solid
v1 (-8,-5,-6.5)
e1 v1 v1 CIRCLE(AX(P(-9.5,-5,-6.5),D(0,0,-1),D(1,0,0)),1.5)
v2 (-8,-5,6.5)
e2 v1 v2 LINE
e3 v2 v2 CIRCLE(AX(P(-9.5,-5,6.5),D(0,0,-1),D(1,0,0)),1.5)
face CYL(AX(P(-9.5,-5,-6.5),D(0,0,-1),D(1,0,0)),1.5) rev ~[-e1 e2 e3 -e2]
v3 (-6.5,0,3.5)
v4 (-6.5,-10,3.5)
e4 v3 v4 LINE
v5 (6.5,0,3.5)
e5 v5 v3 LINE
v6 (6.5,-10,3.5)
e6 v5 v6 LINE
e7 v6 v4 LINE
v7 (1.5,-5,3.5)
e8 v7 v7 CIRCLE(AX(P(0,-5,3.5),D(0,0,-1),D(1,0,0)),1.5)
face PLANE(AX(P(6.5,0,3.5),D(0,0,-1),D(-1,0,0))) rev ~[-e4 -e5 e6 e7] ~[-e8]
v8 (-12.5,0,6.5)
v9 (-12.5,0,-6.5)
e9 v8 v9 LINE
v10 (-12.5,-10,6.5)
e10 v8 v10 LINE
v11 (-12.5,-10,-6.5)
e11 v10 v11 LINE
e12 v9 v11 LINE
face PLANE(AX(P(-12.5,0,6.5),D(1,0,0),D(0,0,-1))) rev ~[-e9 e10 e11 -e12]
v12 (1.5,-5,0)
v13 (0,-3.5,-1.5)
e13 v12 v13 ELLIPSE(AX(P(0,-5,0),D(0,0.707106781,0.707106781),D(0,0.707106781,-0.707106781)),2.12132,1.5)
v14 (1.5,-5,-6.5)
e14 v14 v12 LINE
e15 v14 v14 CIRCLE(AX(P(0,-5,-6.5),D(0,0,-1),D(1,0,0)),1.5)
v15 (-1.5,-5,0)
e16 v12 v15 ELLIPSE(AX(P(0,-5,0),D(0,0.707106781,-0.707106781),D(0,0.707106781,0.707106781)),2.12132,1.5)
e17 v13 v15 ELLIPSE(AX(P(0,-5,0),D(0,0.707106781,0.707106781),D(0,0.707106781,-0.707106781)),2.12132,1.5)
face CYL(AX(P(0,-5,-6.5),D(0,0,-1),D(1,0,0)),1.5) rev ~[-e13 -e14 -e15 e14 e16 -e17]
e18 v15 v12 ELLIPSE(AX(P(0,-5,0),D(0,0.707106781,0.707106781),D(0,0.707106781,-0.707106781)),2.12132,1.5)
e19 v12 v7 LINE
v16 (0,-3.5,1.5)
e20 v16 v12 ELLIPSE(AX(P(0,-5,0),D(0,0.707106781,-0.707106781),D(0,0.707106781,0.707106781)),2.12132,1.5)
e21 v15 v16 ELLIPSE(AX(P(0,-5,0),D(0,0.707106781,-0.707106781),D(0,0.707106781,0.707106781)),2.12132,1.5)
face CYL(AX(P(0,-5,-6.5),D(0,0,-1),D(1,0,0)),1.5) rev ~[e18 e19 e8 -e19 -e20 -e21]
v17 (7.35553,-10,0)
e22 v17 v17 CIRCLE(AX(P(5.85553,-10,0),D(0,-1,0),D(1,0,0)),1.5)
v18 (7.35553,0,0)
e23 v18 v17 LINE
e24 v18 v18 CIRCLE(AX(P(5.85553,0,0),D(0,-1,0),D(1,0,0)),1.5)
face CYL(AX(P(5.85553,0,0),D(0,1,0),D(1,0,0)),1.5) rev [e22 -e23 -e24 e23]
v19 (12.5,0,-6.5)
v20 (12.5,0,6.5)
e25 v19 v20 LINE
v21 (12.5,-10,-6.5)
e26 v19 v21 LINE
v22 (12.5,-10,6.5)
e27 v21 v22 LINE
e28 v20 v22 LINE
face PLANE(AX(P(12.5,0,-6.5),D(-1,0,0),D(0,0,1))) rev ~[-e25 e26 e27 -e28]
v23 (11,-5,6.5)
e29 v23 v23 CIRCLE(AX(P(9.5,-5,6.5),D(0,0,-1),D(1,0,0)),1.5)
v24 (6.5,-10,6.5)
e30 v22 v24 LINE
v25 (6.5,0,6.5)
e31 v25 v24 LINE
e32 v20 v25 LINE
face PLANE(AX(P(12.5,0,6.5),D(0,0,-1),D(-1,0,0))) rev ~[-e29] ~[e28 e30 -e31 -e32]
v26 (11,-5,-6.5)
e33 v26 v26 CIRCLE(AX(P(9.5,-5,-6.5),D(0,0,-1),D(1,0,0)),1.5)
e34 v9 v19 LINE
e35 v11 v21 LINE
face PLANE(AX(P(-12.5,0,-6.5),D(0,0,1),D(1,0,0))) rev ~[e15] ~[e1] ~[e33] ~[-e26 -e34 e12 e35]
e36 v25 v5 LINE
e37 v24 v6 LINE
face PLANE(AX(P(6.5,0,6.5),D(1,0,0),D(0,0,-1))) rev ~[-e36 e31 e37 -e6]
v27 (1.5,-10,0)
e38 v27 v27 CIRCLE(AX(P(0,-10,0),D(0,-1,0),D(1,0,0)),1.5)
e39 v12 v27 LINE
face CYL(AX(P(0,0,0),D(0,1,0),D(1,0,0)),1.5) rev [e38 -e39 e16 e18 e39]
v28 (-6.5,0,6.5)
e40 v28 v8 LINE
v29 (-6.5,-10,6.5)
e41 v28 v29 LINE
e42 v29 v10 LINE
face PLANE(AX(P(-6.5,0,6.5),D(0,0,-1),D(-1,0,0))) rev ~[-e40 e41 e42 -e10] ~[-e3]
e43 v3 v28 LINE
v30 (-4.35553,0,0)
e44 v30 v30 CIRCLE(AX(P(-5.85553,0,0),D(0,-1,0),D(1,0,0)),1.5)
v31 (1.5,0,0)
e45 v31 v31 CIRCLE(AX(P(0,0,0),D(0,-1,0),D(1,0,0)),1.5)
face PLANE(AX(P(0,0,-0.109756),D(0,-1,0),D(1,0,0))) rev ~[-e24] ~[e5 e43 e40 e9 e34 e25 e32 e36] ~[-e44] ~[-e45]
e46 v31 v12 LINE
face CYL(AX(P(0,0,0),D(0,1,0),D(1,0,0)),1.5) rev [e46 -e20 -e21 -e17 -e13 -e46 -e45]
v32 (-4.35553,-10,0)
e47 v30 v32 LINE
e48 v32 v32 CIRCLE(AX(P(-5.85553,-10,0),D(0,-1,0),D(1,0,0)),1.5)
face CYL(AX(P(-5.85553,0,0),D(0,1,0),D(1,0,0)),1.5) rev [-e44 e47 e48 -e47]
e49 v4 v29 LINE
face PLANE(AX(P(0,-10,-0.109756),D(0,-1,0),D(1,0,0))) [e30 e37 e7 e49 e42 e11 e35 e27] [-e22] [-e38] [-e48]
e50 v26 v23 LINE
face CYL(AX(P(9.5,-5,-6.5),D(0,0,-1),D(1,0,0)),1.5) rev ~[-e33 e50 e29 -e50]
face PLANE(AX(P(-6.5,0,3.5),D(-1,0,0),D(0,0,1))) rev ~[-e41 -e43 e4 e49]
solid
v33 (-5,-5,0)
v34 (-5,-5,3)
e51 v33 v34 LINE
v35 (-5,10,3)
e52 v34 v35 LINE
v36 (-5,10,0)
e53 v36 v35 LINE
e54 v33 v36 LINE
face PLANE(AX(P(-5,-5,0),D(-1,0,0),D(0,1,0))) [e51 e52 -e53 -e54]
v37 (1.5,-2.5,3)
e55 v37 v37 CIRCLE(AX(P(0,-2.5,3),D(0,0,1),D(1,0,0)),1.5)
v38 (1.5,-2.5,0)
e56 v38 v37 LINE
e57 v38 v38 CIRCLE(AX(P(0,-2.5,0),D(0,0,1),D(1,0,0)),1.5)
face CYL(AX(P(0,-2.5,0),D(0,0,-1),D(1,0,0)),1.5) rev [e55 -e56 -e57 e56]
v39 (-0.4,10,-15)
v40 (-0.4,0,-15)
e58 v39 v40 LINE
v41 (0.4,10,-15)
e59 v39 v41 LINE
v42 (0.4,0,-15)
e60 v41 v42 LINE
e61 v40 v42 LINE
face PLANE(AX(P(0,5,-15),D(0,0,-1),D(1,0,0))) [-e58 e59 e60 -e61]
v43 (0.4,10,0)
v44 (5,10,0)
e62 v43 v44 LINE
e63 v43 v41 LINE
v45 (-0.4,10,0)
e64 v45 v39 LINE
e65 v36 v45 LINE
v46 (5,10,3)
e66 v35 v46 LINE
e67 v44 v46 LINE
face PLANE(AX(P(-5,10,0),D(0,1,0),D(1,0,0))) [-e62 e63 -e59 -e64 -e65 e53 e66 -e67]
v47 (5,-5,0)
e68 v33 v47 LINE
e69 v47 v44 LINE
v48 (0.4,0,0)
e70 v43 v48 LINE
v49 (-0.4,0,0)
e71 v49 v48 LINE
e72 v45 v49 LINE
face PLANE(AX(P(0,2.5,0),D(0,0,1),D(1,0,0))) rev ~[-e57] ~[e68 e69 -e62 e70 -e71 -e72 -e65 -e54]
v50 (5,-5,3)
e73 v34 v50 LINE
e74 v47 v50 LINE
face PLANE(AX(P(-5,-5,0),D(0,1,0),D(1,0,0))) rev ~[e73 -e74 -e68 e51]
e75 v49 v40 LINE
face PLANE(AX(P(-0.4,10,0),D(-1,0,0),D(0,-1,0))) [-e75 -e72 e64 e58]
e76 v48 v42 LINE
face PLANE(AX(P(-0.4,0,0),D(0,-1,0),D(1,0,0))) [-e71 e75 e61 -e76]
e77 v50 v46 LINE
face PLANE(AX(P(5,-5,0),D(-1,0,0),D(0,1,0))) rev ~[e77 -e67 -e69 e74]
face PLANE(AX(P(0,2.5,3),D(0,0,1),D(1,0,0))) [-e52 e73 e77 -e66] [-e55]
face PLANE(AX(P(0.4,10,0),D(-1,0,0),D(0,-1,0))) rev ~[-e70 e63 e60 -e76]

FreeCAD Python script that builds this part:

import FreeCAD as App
import Part
import Sketcher

V = App.Vector

doc = App.newDocument("Part")
body = doc.addObject("PartDesign::Body", "Body")

# Sketch on XZ plane
sketch1 = body.newObject("Sketcher::SketchObject", "Sketch")
sketch1.AttachmentSupport = (doc.getObject("XZ_Plane"), [""])
sketch1.MapMode = "FlatFace"
sketch1.addGeometry([
    Part.LineSegment(V(-12.5, 6.5, 0), V(-12.5, -6.5, 0)),  # 0
    Part.LineSegment(V(-12.5, -6.5, 0), V(12.5, -6.5, 0)),  # 1
    Part.LineSegment(V(12.5, -6.5, 0), V(12.5, 6.5, 0)),  # 2
    Part.LineSegment(V(12.5, 6.5, 0), V(6.5, 6.5, 0)),  # 3
    Part.LineSegment(V(6.5, 6.5, 0), V(6.5, 3.5, 0)),  # 4
    Part.LineSegment(V(6.5, 3.5, 0), V(-6.5, 3.5, 0)),  # 5
    Part.LineSegment(V(-6.5, 3.5, 0), V(-6.5, 6.5, 0)),  # 6
    Part.LineSegment(V(-6.5, 6.5, 0), V(-12.5, 6.5, 0)),  # 7
    Part.Circle(V(-5.9, 0, 0), V(0, 0, 1), 1.5),  # 8
    Part.Circle(V(0, 0, 0), V(0, 0, 1), 1.5),  # 9
    Part.Circle(V(5.9, 0, 0), V(0, 0, 1), 1.5),  # 10
], False)
sketch1.addConstraint([
    Sketcher.Constraint("Coincident", 0, 2, 1, 1),
    Sketcher.Constraint("Coincident", 1, 2, 2, 1),
    Sketcher.Constraint("Coincident", 2, 2, 3, 1),
    Sketcher.Constraint("Coincident", 3, 2, 4, 1),
    Sketcher.Constraint("Coincident", 4, 2, 5, 1),
    Sketcher.Constraint("Coincident", 5, 2, 6, 1),
    Sketcher.Constraint("Coincident", 6, 2, 7, 1),
    Sketcher.Constraint("Coincident", 7, 2, 0, 1),
    Sketcher.Constraint("Vertical", 0),
    Sketcher.Constraint("Horizontal", 1),
    Sketcher.Constraint("Vertical", 2),
    Sketcher.Constraint("Horizontal", 3),
    Sketcher.Constraint("Vertical", 4),
    Sketcher.Constraint("Horizontal", 5),
    Sketcher.Constraint("Vertical", 6),
    Sketcher.Constraint("Horizontal", 7),
    Sketcher.Constraint("Coincident", 9, 3, -1, 1),
    Sketcher.Constraint("Equal", 8, 9),
    Sketcher.Constraint("Equal", 9, 10),
    Sketcher.Constraint("Symmetric", 8, 3, 10, 3, -1, 1),
    Sketcher.Constraint("Symmetric", 0, 2, 2, 2, -1, 1),
    Sketcher.Constraint("Symmetric", 3, 2, 6, 2, -2),
    Sketcher.Constraint("PointOnObject", 8, 3, -1),
    Sketcher.Constraint("Equal", 5, 0),
    Sketcher.Constraint("Diameter", 8, 3.0),
    Sketcher.Constraint("DistanceX", 1, 1, 1, 2, 25.0),
    Sketcher.Constraint("DistanceX", 3, 2, 3, 1, 6.0),
    Sketcher.Constraint("DistanceY", 4, 2, 4, 1, 3.0),
    Sketcher.Constraint("DistanceX", 8, 3, -1, 1, 5.85553),
])
pad1 = body.newObject("PartDesign::Pad", "Pad")
pad1.Profile = sketch1
pad1.Length = 10

# Sketch on XY plane
sketch2 = body.newObject("Sketcher::SketchObject", "Sketch001")
sketch2.AttachmentSupport = (doc.getObject("XY_Plane"), [""])
sketch2.MapMode = "FlatFace"
sketch2.AttachmentOffset = App.Placement(V(0, 0, -6.5), App.Rotation())
sketch2.addGeometry([
    Part.Circle(V(-9.5, -5, 0), V(0, 0, 1), 1.5),
    Part.Circle(V(0, -5, 0), V(0, 0, 1), 1.5),
    Part.Circle(V(9.5, -5, 0), V(0, 0, 1), 1.5),
], False)
sketch2.addConstraint([
    Sketcher.Constraint("Equal", 0, 1),
    Sketcher.Constraint("Equal", 1, 2),
    Sketcher.Constraint("Symmetric", 0, 3, 2, 3, -2),
    Sketcher.Constraint("PointOnObject", 1, 3, -2),
    Sketcher.Constraint("Horizontal", 0, 3, 1, 3),
    Sketcher.Constraint("Diameter", 0, 3.0),
    Sketcher.Constraint("DistanceY", 0, 3, -1, 1, 5.0),
    Sketcher.Constraint("DistanceX", 0, 3, 2, 3, 19.0),
])
pocket1 = body.newObject("PartDesign::Pocket", "Pocket")
pocket1.Profile = sketch2
pocket1.Type = "ThroughAll"
pocket1.Reversed = True
body2 = doc.addObject("PartDesign::Body", "Body001")

# Sketch on XY plane
sketch3 = body2.newObject("Sketcher::SketchObject", "Sketch002")
sketch3.AttachmentSupport = (doc.getObject("XY_Plane001"), [""])
sketch3.MapMode = "FlatFace"
sketch3.addGeometry([
    Part.LineSegment(V(-5, 10, 0), V(-5, -5, 0)),  # 0
    Part.LineSegment(V(-5, -5, 0), V(5, -5, 0)),  # 1
    Part.LineSegment(V(5, -5, 0), V(5, 10, 0)),  # 2
    Part.LineSegment(V(5, 10, 0), V(-5, 10, 0)),  # 3
    Part.Circle(V(0, -2.5, 0), V(0, 0, 1), 1.5),  # 4
], False)
sketch3.addConstraint([
    Sketcher.Constraint("Coincident", 0, 2, 1, 1),
    Sketcher.Constraint("Coincident", 1, 2, 2, 1),
    Sketcher.Constraint("Coincident", 2, 2, 3, 1),
    Sketcher.Constraint("Coincident", 3, 2, 0, 1),
    Sketcher.Constraint("Vertical", 0),
    Sketcher.Constraint("Horizontal", 1),
    Sketcher.Constraint("Vertical", 2),
    Sketcher.Constraint("Horizontal", 3),
    Sketcher.Constraint("PointOnObject", 4, 3, -2),
    Sketcher.Constraint("Diameter", 4, 3.0),
    Sketcher.Constraint("DistanceX", 1, 1, 1, 2, 10.0),
    Sketcher.Constraint("DistanceY", 0, 2, 0, 1, 15.0),
    Sketcher.Constraint("DistanceX", 0, 2, -1, 1, 5.0),
    Sketcher.Constraint("DistanceY", 0, 2, -1, 1, 5.0),
    Sketcher.Constraint("DistanceY", 4, 3, -1, 1, 2.5),
])
pad2 = body2.newObject("PartDesign::Pad", "Pad001")
pad2.Profile = sketch3
pad2.Length = 3

# Sketch on XY plane
sketch4 = body2.newObject("Sketcher::SketchObject", "Sketch003")
sketch4.AttachmentSupport = (doc.getObject("XY_Plane001"), [""])
sketch4.MapMode = "FlatFace"
sketch4.addGeometry([
    Part.LineSegment(V(-0.4, 0, 0), V(-0.4, 10, 0)),
    Part.LineSegment(V(-0.4, 10, 0), V(0.4, 10, 0)),
    Part.LineSegment(V(0.4, 10, 0), V(0.4, 0, 0)),
    Part.LineSegment(V(0.4, 0, 0), V(-0.4, 0, 0)),
], False)
sketch4.addConstraint([
    Sketcher.Constraint("Coincident", 0, 2, 1, 1),
    Sketcher.Constraint("Coincident", 1, 2, 2, 1),
    Sketcher.Constraint("Coincident", 2, 2, 3, 1),
    Sketcher.Constraint("Coincident", 3, 2, 0, 1),
    Sketcher.Constraint("Vertical", 0),
    Sketcher.Constraint("Horizontal", 1),
    Sketcher.Constraint("Vertical", 2),
    Sketcher.Constraint("Horizontal", 3),
    Sketcher.Constraint("Symmetric", 2, 2, 3, 2, -1, 1),
    Sketcher.Constraint("DistanceY", 0, 1, 0, 2, 10.0),
    Sketcher.Constraint("DistanceX", 1, 1, 1, 2, 0.8),
])
pad3 = body2.newObject("PartDesign::Pad", "Pad002")
pad3.Profile = sketch4
pad3.Length = 15
pad3.Reversed = True

doc.recompute()
